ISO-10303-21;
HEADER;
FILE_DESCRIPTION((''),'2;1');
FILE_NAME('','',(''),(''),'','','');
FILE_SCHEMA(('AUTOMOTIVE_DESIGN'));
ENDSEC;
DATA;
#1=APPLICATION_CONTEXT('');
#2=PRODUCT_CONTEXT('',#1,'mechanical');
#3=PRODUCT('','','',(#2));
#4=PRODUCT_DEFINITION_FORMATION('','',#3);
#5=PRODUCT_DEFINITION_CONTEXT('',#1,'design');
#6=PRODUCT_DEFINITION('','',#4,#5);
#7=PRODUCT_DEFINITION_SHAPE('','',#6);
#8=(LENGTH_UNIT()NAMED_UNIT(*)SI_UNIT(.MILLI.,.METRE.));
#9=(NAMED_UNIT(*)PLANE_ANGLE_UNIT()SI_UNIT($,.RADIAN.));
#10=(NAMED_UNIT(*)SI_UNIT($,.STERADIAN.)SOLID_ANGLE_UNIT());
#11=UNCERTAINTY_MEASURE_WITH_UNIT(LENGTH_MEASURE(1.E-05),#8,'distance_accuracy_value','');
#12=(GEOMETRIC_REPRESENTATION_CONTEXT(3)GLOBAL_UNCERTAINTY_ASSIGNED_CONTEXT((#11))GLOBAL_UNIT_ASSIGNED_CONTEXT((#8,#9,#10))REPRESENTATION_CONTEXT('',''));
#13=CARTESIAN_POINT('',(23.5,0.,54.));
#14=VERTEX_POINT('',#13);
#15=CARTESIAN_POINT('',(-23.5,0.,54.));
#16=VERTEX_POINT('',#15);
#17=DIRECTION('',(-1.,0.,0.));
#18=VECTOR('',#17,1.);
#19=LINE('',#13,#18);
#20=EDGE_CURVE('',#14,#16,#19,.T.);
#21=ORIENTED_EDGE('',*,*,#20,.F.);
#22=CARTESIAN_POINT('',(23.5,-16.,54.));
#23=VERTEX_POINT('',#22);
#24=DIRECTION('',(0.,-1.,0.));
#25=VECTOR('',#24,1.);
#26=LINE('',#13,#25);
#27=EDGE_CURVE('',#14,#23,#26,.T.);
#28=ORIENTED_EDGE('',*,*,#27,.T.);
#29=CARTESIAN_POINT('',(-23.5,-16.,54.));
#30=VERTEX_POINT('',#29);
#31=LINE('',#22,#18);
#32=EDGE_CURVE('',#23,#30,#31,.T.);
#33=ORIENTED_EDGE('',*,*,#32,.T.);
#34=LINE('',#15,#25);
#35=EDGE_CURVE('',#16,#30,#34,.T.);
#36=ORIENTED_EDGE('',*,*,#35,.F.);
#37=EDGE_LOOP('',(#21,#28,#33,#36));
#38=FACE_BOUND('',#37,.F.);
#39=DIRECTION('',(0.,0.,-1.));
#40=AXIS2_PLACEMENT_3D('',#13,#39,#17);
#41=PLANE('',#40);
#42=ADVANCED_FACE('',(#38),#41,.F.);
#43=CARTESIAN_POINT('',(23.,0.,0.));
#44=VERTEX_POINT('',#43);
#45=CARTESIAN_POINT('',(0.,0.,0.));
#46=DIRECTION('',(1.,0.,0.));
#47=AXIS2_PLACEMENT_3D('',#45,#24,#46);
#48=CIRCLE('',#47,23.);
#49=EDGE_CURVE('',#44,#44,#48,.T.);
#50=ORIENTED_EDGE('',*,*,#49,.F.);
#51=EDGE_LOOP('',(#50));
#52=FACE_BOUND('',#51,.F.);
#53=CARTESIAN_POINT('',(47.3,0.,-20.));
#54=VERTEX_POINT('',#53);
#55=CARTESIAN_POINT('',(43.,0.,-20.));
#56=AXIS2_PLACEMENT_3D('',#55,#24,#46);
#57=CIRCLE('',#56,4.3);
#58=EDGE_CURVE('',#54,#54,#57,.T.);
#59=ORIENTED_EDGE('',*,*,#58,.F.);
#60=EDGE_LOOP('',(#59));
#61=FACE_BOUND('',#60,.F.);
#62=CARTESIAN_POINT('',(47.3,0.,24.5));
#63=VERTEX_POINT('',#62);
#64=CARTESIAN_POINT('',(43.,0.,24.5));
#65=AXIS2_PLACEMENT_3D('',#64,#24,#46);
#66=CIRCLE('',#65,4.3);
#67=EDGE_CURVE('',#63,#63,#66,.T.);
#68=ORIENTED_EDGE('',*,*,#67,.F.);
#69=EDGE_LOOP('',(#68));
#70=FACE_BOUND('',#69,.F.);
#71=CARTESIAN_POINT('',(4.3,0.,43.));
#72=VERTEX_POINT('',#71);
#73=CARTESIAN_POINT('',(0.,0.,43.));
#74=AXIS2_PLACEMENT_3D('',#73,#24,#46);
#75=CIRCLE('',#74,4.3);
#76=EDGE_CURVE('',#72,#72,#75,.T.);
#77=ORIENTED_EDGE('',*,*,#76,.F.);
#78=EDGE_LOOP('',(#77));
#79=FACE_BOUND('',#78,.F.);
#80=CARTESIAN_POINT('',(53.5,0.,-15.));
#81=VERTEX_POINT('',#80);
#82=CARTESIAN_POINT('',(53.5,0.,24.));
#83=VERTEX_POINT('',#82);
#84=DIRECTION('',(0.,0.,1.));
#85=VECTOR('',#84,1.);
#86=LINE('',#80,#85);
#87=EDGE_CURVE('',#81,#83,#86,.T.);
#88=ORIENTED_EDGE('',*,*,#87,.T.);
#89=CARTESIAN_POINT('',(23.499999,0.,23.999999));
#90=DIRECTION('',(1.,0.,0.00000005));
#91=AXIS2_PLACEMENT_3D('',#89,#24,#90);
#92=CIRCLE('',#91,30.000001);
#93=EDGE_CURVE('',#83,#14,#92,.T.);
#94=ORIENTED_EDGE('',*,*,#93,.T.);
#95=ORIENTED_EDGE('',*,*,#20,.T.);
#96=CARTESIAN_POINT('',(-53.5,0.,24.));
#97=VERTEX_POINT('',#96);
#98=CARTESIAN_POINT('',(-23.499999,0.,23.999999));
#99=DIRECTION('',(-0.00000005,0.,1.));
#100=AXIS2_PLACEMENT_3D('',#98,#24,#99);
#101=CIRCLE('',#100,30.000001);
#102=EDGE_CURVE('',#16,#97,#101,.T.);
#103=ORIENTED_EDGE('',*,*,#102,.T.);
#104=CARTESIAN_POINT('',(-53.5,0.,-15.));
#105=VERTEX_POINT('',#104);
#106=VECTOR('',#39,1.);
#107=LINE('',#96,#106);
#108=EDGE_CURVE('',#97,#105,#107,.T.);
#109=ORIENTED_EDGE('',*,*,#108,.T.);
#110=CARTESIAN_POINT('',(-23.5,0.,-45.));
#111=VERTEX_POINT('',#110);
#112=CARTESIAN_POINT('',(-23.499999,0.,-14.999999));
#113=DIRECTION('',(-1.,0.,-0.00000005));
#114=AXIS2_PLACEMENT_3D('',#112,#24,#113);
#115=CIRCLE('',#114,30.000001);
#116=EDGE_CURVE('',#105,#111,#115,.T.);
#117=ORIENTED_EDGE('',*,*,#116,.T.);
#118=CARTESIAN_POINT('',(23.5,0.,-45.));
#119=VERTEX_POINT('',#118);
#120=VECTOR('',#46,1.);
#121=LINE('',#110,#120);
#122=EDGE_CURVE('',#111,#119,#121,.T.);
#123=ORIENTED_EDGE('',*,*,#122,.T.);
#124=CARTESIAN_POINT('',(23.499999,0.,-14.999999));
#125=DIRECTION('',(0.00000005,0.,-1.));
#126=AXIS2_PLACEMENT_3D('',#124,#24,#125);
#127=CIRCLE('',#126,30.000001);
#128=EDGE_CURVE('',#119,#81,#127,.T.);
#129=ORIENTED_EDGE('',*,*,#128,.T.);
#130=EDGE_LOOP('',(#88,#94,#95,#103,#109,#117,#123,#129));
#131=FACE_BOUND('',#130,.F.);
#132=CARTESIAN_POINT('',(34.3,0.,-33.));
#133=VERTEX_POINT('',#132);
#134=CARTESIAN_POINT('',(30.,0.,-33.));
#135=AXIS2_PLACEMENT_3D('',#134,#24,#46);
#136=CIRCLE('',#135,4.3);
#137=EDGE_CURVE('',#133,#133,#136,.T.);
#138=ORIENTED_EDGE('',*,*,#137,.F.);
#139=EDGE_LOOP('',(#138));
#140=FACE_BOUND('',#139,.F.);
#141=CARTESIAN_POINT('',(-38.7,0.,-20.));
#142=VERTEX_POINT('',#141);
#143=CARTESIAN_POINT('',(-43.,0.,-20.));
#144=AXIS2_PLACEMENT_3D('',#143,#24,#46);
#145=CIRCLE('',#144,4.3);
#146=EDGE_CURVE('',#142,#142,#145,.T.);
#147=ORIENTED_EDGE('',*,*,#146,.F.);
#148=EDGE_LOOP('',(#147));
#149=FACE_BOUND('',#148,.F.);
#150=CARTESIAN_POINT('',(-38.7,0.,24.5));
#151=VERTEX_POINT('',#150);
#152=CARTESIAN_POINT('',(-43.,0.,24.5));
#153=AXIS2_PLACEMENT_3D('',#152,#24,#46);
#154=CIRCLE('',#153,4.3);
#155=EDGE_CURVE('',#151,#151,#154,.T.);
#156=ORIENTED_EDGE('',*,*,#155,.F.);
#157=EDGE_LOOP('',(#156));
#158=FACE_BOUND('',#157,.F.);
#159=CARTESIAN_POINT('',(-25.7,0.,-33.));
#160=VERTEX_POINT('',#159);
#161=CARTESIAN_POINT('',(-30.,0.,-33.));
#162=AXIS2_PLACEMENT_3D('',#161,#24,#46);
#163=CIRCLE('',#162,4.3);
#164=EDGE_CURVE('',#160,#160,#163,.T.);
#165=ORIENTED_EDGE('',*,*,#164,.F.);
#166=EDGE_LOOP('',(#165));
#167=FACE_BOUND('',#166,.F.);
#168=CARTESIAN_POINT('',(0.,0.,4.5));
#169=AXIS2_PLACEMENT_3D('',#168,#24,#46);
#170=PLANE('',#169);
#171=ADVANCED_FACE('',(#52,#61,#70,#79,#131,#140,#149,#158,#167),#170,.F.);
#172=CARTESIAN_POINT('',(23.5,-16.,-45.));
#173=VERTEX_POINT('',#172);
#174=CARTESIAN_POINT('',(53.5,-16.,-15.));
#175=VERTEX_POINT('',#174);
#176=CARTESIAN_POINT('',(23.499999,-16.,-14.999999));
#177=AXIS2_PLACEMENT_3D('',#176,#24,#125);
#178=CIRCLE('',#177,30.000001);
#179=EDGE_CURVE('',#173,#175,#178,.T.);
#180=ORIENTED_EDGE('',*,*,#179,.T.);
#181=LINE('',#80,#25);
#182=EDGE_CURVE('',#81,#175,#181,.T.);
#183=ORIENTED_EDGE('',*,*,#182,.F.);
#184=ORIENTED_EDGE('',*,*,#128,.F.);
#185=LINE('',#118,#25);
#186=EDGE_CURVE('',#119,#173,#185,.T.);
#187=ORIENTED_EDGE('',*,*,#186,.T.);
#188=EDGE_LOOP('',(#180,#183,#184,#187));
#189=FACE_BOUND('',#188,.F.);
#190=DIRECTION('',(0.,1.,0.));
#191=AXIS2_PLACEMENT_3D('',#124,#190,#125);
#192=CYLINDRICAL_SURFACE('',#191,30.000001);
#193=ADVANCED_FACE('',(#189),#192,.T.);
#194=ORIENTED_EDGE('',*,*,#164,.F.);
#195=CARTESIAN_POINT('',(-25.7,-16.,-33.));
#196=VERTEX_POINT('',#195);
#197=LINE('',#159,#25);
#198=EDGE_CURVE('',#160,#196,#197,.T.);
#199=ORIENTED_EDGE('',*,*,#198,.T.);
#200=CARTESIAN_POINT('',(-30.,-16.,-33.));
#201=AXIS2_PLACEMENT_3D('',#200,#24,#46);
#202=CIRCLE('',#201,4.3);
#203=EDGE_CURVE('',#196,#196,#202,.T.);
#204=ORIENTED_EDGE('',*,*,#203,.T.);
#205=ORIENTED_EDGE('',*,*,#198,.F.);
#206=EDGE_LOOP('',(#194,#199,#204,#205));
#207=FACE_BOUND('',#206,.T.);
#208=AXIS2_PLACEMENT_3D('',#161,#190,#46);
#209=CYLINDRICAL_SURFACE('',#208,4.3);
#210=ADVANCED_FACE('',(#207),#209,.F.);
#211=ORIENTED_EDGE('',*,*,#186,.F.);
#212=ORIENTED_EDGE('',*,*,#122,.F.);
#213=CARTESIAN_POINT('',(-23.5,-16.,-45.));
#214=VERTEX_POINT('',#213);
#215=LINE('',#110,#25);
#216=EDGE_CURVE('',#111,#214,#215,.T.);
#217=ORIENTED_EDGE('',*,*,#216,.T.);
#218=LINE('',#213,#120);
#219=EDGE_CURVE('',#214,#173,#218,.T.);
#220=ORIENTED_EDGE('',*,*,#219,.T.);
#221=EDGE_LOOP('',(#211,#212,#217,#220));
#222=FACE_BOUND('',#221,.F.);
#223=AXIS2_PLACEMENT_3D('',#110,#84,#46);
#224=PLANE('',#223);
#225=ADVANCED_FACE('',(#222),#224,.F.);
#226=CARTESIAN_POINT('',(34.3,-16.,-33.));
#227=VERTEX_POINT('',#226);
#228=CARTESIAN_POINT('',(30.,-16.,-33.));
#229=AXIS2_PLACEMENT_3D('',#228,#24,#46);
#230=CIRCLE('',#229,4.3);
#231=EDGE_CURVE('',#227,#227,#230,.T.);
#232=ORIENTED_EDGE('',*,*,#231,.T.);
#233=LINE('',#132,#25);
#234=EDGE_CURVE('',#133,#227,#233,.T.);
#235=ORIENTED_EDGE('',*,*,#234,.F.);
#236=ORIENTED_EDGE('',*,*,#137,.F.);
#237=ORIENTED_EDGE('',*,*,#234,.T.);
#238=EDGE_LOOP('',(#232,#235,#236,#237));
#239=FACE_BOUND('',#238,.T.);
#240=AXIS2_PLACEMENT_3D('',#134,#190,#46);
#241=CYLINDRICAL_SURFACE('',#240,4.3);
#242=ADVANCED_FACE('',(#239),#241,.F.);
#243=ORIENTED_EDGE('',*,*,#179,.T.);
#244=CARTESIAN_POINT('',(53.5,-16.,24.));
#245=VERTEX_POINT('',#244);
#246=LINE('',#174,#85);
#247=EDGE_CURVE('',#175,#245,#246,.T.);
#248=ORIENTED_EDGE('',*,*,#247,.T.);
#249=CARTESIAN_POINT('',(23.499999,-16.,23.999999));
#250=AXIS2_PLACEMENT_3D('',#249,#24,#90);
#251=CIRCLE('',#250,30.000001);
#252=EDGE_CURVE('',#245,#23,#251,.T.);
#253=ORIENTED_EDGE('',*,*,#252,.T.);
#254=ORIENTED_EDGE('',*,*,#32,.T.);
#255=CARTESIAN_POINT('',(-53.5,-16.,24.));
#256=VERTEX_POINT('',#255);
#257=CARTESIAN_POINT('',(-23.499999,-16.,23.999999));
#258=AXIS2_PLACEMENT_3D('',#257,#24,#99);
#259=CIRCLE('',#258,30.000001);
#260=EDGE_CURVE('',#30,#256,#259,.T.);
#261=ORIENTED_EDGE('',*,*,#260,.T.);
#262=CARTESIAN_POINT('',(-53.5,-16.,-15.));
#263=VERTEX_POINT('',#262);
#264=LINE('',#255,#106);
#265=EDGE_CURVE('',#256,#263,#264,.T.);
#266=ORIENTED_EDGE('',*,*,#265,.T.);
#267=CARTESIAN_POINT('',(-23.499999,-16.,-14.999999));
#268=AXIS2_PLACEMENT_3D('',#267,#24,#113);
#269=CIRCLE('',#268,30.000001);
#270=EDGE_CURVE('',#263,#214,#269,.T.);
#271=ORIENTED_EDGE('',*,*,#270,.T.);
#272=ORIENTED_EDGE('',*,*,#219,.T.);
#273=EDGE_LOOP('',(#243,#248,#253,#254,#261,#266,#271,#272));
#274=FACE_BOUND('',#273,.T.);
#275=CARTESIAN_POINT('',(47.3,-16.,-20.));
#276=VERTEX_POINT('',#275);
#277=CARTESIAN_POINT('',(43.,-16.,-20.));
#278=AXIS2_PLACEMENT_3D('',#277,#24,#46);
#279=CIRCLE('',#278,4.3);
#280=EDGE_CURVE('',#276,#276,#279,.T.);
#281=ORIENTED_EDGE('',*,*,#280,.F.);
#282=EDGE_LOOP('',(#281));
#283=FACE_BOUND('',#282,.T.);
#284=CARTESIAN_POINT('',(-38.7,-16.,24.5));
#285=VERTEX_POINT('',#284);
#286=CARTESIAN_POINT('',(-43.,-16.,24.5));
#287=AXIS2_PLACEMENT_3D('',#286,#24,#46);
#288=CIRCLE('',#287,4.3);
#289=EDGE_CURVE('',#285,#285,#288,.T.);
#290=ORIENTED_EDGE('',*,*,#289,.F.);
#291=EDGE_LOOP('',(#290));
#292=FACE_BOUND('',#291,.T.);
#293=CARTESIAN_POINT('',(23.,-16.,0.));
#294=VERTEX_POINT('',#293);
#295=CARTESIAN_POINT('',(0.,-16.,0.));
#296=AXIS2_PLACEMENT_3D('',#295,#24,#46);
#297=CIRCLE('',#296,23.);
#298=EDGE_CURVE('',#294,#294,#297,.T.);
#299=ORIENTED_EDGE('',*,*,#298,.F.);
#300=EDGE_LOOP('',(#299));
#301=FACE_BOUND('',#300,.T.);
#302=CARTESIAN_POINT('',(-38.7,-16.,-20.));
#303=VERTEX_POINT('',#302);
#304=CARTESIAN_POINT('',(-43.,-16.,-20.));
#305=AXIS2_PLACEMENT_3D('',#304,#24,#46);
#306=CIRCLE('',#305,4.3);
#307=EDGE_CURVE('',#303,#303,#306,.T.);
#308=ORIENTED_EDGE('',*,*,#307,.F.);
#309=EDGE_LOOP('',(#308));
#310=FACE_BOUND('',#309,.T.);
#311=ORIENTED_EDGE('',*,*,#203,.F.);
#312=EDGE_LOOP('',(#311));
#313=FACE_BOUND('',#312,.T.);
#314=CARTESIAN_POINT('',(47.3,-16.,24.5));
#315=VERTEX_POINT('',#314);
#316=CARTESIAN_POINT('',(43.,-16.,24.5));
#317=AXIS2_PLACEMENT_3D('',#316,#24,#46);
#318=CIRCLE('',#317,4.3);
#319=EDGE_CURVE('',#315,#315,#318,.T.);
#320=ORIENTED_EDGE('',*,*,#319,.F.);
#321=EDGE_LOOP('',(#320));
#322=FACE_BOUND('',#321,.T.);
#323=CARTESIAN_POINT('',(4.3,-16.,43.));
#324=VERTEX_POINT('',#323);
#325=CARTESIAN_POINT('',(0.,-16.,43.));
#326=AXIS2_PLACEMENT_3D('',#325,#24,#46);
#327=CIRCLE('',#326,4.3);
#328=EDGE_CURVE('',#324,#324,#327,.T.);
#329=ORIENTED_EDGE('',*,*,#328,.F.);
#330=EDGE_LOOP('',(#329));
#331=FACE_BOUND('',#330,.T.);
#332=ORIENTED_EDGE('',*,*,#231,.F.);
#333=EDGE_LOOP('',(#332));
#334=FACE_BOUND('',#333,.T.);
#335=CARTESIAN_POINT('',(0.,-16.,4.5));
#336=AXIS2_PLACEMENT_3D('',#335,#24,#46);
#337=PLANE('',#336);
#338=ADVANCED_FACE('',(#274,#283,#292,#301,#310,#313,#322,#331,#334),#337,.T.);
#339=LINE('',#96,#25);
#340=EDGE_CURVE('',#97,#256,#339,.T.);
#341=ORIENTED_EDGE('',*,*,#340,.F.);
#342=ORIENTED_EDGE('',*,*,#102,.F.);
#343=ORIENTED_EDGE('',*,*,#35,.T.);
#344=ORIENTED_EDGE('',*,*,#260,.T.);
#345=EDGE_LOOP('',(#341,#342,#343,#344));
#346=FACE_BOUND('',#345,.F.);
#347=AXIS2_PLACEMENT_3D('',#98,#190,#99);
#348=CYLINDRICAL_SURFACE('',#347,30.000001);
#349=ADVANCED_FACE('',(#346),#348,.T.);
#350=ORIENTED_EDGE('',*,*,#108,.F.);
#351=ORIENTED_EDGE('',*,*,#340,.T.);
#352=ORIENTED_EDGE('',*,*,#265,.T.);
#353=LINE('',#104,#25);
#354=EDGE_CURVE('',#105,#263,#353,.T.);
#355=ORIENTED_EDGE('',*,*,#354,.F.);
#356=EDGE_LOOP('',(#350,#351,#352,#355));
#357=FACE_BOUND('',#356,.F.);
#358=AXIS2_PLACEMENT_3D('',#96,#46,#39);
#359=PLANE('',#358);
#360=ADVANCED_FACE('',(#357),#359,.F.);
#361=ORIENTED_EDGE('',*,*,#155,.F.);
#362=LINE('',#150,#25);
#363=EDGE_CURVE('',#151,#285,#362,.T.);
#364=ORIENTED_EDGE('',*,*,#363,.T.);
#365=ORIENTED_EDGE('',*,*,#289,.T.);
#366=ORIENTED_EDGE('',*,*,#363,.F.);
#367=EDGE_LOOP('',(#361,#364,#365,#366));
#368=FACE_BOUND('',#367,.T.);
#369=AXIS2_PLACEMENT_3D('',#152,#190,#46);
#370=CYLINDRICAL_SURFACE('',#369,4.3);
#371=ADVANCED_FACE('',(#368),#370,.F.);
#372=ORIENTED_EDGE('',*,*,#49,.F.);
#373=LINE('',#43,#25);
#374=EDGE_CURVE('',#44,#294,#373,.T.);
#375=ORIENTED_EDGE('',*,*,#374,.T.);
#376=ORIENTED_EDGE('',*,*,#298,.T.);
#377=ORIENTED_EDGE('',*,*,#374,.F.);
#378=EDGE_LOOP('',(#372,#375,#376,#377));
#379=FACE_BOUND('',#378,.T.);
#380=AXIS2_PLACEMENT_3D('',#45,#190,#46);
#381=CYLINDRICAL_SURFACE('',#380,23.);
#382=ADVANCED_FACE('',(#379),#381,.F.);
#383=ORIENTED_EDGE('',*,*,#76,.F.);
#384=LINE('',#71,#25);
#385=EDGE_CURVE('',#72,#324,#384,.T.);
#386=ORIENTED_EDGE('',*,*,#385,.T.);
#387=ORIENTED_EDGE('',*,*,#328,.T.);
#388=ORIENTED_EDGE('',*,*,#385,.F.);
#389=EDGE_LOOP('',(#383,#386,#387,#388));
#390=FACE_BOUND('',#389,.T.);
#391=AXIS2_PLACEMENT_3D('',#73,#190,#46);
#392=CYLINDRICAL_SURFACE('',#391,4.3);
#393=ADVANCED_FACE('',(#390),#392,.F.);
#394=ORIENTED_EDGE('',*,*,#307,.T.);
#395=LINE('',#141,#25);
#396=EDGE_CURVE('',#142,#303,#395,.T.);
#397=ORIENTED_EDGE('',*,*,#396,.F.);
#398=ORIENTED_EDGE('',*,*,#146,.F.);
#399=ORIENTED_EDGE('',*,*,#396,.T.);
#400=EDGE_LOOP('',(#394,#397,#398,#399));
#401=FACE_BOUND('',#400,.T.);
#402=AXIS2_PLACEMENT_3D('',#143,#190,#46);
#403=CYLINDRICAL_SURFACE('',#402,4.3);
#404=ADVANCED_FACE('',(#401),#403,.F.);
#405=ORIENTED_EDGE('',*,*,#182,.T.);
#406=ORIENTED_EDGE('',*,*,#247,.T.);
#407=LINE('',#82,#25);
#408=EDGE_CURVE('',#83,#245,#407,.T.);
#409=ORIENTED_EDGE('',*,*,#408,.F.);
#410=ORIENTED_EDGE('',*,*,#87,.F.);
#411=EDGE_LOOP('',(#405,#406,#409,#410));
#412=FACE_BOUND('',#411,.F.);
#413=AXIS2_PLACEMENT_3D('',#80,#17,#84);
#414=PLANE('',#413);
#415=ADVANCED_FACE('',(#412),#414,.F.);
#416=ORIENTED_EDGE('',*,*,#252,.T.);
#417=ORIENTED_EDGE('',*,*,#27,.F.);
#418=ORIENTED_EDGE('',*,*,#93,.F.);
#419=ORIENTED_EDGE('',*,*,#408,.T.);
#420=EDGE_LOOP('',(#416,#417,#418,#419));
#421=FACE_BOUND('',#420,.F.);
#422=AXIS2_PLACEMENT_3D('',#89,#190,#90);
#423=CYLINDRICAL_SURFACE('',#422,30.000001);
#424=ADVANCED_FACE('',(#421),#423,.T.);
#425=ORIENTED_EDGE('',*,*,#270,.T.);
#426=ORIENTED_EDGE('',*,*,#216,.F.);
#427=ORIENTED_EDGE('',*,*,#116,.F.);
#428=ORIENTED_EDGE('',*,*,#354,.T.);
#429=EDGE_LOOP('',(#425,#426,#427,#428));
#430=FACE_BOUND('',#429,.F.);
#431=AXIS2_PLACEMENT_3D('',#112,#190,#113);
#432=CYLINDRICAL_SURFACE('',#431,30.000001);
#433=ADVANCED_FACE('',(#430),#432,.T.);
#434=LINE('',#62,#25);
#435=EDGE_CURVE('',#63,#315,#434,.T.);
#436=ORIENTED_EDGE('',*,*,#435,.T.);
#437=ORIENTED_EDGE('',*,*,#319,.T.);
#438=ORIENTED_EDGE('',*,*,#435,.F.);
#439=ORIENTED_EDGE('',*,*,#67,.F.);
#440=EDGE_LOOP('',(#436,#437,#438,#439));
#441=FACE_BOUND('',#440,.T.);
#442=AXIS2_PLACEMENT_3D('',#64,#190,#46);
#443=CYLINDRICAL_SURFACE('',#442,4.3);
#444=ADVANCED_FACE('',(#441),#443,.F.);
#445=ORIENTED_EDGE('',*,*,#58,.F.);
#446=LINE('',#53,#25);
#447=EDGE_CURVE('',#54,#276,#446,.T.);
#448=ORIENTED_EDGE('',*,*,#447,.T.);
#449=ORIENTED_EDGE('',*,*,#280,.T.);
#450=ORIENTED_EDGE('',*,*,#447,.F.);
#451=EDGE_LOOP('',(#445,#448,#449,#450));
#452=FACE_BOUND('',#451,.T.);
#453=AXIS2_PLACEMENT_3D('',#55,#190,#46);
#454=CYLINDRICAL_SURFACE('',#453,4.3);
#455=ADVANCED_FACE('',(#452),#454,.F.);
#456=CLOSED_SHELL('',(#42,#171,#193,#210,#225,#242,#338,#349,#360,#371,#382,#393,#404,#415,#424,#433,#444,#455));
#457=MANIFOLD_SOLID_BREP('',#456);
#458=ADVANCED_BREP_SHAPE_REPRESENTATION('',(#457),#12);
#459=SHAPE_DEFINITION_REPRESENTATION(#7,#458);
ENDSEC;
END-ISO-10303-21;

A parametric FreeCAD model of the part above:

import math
import FreeCAD as App
import Part
import Sketcher

V = App.Vector
Q = App.Units.Quantity

doc = App.newDocument("Part")
body = doc.addObject("PartDesign::Body", "Body")

sketch1 = body.newObject("Sketcher::SketchObject", "Sketch")
sketch1.AttachmentSupport = (doc.getObject("XZ_Plane"), [""])
sketch1.MapMode = "FlatFace"
sketch1.addGeometry([
    Part.LineSegment(V(23.5, 54, 0), V(-23.5, 54, 0)),
    Part.ArcOfCircle(Part.Circle(V(-23.499999, 23.999999, 0), V(0, 0, 1), 30.000001), math.radians(90.000003), math.radians(179.999997)),
    Part.LineSegment(V(-53.5, 24, 0), V(-53.5, -15, 0)),
    Part.ArcOfCircle(Part.Circle(V(-23.499999, -14.999999, 0), V(0, 0, 1), 30.000001), math.radians(-179.999997), math.radians(-90.000003)),
    Part.LineSegment(V(-23.5, -45, 0), V(23.5, -45, 0)),
    Part.ArcOfCircle(Part.Circle(V(23.499999, -14.999999, 0), V(0, 0, 1), 30.000001), math.radians(-89.999997), math.radians(-0.000003)),
    Part.LineSegment(V(53.5, -15, 0), V(53.5, 24, 0)),
    Part.ArcOfCircle(Part.Circle(V(23.499999, 23.999999, 0), V(0, 0, 1), 30.000001), math.radians(0.000003), math.radians(89.999997)),
    Part.Circle(V(-30, -33, 0), V(0, 0, 1), 4.3),
    Part.Circle(V(-43, -20, 0), V(0, 0, 1), 4.3),
    Part.Circle(V(0, 0, 0), V(0, 0, 1), 23),
    Part.Circle(V(30, -33, 0), V(0, 0, 1), 4.3),
    Part.Circle(V(43, -20, 0), V(0, 0, 1), 4.3),
    Part.Circle(V(-43, 24.5, 0), V(0, 0, 1), 4.3),
    Part.Circle(V(0, 43, 0), V(0, 0, 1), 4.3),
    Part.Circle(V(43, 24.5, 0), V(0, 0, 1), 4.3),
], False)
sketch1.addConstraint([
    Sketcher.Constraint("Tangent", 0, 2, 1, 1),
    Sketcher.Constraint("Tangent", 1, 2, 2, 1),
    Sketcher.Constraint("Tangent", 2, 2, 3, 1),
    Sketcher.Constraint("Tangent", 3, 2, 4, 1),
    Sketcher.Constraint("Tangent", 4, 2, 5, 1),
    Sketcher.Constraint("Tangent", 5, 2, 6, 1),
    Sketcher.Constraint("Tangent", 6, 2, 7, 1),
    Sketcher.Constraint("Tangent", 7, 2, 0, 1),
    Sketcher.Constraint("Horizontal", 0),
    Sketcher.Constraint("Vertical", 2),
    Sketcher.Constraint("Horizontal", 4),
    Sketcher.Constraint("Vertical", 6),
    Sketcher.Constraint("Coincident", 10, 3, -1, 1),
    Sketcher.Constraint("Equal", 1, 3),
    Sketcher.Constraint("Equal", 3, 5),
    Sketcher.Constraint("Equal", 5, 7),
    Sketcher.Constraint("Equal", 8, 9),
    Sketcher.Constraint("Equal", 9, 11),
    Sketcher.Constraint("Equal", 11, 12),
    Sketcher.Constraint("Equal", 12, 13),
    Sketcher.Constraint("Equal", 13, 14),
    Sketcher.Constraint("Equal", 14, 15),
    Sketcher.Constraint("Symmetric", 8, 3, 11, 3, -2),
    Sketcher.Constraint("Symmetric", 9, 3, 12, 3, -2),
    Sketcher.Constraint("Symmetric", 13, 3, 15, 3, -2),
    Sketcher.Constraint("PointOnObject", 14, 3, -2),
    Sketcher.Constraint("Vertical", 9, 3, 13, 3),
    Sketcher.Constraint("Diameter", 10, Q("46 mm")),
    Sketcher.Constraint("Radius", 1, Q("30.000001 mm")),
    Sketcher.Constraint("Diameter", 8, Q("8.6 mm")),
    Sketcher.Constraint("DistanceX", 0, 2, 0, 1, Q("47 mm")),
    Sketcher.Constraint("DistanceY", 2, 2, 2, 1, Q("39 mm")),
    Sketcher.Constraint("DistanceY", -1, 1, 1, 3, Q("23.999999 mm")),
    Sketcher.Constraint("DistanceX", 8, 3, -1, 1, Q("30 mm")),
    Sketcher.Constraint("DistanceY", 8, 3, -1, 1, Q("33 mm")),
    Sketcher.Constraint("DistanceX", 9, 3, -1, 1, Q("43 mm")),
    Sketcher.Constraint("DistanceY", 9, 3, -1, 1, Q("20 mm")),
    Sketcher.Constraint("DistanceY", -1, 1, 14, 3, Q("43 mm")),
    Sketcher.Constraint("DistanceX", 1, 3, -1, 1, Q("23.499999 mm")),
    Sketcher.Constraint("DistanceY", -1, 1, 13, 3, Q("24.5 mm")),
])
pad1 = body.newObject("PartDesign::Pad", "Pad")
pad1.Profile = sketch1
pad1.Length = 16

doc.recompute()
